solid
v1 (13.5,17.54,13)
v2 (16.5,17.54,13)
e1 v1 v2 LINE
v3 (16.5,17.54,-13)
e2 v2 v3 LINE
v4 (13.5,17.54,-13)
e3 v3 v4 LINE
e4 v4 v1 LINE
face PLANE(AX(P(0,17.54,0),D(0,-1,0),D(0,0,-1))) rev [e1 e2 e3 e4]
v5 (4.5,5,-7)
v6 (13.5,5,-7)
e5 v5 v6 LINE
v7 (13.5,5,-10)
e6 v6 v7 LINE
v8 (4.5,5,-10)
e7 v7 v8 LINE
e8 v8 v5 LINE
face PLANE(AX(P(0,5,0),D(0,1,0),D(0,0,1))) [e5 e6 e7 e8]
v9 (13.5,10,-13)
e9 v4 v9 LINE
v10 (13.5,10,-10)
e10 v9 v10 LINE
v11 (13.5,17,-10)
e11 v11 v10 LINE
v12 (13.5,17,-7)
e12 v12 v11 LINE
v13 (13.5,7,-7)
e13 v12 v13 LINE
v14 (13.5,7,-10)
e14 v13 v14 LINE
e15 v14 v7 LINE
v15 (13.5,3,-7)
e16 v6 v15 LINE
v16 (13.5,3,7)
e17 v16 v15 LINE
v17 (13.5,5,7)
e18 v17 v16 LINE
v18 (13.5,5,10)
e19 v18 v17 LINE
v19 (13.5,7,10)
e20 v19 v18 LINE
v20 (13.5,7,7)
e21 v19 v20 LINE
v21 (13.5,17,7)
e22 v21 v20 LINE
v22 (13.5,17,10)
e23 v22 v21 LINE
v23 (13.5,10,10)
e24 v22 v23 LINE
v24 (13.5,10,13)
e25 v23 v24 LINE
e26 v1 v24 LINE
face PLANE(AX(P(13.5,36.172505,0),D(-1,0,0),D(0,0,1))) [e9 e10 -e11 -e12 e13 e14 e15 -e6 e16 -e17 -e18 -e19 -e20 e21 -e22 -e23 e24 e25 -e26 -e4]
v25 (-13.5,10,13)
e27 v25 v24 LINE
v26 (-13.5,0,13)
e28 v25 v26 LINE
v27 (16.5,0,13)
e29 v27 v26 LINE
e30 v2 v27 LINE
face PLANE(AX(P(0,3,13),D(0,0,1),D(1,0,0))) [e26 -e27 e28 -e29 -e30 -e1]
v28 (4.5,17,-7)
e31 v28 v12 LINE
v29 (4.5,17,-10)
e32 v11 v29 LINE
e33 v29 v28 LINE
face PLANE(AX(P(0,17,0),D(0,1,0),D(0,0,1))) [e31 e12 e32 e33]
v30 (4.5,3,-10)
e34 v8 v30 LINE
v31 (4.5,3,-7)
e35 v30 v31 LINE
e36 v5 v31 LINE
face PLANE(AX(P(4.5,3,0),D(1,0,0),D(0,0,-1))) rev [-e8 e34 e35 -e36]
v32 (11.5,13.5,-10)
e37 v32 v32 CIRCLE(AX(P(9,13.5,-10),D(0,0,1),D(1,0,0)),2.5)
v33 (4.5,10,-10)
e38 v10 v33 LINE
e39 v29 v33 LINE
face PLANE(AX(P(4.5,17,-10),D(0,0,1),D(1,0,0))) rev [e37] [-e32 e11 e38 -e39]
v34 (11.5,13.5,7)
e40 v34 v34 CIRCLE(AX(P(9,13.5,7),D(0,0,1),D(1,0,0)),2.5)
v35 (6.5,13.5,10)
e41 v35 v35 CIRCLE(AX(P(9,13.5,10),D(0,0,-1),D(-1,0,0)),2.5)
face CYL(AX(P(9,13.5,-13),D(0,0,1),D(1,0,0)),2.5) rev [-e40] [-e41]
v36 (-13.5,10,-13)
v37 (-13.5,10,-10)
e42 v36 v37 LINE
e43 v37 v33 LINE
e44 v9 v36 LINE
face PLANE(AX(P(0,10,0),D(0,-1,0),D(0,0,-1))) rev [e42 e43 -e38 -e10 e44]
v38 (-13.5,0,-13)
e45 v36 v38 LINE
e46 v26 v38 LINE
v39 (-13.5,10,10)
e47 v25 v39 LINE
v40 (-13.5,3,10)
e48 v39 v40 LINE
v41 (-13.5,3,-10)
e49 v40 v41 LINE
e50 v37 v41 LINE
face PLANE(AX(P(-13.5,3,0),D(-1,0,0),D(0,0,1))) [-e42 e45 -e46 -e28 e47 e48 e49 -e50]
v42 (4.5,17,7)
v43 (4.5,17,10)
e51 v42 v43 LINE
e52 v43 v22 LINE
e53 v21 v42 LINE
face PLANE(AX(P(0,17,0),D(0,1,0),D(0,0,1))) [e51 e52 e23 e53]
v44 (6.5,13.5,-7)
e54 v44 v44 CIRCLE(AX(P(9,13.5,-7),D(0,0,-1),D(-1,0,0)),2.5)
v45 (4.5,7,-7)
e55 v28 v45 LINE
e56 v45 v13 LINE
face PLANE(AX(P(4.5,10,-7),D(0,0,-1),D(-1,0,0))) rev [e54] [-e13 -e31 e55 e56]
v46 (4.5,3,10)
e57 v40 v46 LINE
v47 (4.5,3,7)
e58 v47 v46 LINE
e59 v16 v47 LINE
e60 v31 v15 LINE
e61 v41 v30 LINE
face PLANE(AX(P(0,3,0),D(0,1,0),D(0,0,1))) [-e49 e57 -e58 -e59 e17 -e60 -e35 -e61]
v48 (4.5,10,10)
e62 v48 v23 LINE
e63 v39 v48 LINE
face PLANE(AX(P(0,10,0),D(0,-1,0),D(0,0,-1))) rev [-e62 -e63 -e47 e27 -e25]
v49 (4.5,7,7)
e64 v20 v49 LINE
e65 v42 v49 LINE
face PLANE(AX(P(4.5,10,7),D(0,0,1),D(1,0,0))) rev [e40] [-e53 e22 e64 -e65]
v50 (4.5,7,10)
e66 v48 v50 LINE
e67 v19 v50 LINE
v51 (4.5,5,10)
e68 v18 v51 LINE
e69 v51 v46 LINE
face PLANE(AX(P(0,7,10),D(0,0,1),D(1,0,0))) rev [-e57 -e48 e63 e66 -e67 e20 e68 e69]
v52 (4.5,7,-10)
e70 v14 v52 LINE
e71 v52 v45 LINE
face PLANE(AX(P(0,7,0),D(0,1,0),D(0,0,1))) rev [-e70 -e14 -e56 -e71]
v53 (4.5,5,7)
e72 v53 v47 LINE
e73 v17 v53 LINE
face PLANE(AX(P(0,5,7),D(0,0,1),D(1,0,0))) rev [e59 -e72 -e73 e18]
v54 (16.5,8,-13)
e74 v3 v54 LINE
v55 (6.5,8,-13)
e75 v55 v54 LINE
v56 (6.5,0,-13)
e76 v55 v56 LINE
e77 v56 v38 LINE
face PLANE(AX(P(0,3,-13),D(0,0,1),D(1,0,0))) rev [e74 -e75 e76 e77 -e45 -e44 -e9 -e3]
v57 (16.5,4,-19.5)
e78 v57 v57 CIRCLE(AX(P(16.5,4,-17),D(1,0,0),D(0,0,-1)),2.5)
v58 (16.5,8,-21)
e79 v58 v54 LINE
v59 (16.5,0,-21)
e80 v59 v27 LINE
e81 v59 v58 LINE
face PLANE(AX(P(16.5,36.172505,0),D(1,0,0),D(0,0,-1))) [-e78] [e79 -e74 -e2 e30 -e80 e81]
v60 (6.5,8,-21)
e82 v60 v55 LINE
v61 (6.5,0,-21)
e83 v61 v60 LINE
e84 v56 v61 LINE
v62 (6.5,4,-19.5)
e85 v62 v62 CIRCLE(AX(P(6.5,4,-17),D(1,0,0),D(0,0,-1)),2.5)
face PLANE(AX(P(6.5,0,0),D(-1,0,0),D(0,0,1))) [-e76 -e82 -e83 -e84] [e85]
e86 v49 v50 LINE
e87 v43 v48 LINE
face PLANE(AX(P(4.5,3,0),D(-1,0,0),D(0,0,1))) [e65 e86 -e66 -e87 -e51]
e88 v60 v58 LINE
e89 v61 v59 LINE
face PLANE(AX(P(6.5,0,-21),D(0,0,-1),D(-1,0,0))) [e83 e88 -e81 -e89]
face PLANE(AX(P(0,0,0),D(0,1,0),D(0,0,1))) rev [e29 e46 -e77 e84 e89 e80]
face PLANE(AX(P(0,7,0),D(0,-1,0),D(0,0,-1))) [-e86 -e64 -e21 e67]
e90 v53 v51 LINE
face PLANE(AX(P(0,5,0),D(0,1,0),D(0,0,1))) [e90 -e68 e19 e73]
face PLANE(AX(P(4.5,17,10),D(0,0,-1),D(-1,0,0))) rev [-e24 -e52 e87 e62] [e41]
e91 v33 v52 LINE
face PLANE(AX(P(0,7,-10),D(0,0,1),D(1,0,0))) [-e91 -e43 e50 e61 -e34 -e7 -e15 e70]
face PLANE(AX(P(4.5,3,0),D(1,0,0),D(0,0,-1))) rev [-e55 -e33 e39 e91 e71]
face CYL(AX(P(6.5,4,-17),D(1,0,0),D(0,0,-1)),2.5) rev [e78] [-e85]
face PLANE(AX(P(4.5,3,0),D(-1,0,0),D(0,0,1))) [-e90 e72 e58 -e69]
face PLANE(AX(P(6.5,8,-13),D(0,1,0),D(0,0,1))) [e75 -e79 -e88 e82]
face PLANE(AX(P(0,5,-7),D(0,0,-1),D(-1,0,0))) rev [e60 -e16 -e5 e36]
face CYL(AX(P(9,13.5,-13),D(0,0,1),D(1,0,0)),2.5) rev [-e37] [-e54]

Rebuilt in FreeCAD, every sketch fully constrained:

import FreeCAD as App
import Part
import Sketcher
Q = App.Units.Quantity

doc = App.newDocument("Part")
params = doc.addObject("Spreadsheet::Sheet", "Params")
for row, (alias, value) in enumerate([
    ("sketch1_width", "18 mm"),
    ("sketch1_width2", "9 mm"),
    ("sketch1_height", "20 mm"),
    ("sketch1_height2", "3 mm"),
    ("pad1_length", "3 mm"),
    ("sketch2_width", "9 mm"),
    ("sketch2_height", "3 mm"),
    ("pad2_length", "4 mm"),
    ("sketch3_width", "9 mm"),
    ("sketch3_height", "6 mm"),
    ("pad3_length", "3 mm"),
    ("sketch4_width", "9 mm"),
    ("sketch4_height", "6 mm"),
    ("pad4_length", "2 mm"),
    ("sketch5_width", "3 mm"),
    ("sketch5_width2", "18 mm"),
    ("sketch5_height", "26 mm"),
    ("pad5_length", "10 mm"),
    ("sketch6_width", "3 mm"),
    ("sketch6_height", "26 mm"),
    ("pad6_length", "7.54 mm"),
    ("sketch7_width", "9 mm"),
    ("sketch7_height", "3 mm"),
    ("pad7_length", "7 mm"),
    ("sketch8_diameter", "5 mm"),
    ("sketch9_diameter", "5 mm"),
    ("sketch9_width", "8 mm"),
    ("pad8_length", "10 mm"),
], start=1):
    params.set(f"A{row}", alias)
    params.set(f"B{row}", "=" + value)
    params.setAlias(f"B{row}", alias)

body = doc.addObject("PartDesign::Body", "Body")

# Sketch on XZ plane
sketch1 = body.newObject("Sketcher::SketchObject", "Sketch")
sketch1.AttachmentSupport = (doc.getObject("XZ_Plane"), [""])
sketch1.MapMode = "FlatFace"
sketch1.addGeometry(Part.LineSegment(App.Vector(-13.5, -10, 0), App.Vector(-13.5, 10, 0)), False)
sketch1.addGeometry(Part.LineSegment(App.Vector(-13.5, 10, 0), App.Vector(4.5, 10, 0)), False)
sketch1.addGeometry(Part.LineSegment(App.Vector(4.5, 10, 0), App.Vector(4.5, 13, 0)), False)
sketch1.addGeometry(Part.LineSegment(App.Vector(4.5, 13, 0), App.Vector(13.5, 13, 0)), False)
sketch1.addGeometry(Part.LineSegment(App.Vector(13.5, 13, 0), App.Vector(13.5, -13, 0)), False)
sketch1.addGeometry(Part.LineSegment(App.Vector(13.5, -13, 0), App.Vector(4.5, -13, 0)), False)
sketch1.addGeometry(Part.LineSegment(App.Vector(4.5, -13, 0), App.Vector(4.5, -10, 0)), False)
sketch1.addGeometry(Part.LineSegment(App.Vector(4.5, -10, 0), App.Vector(-13.5, -10, 0)), False)
sketch1.addConstraint(Sketcher.Constraint("Coincident", 0, 2, 1, 1))
sketch1.addConstraint(Sketcher.Constraint("Coincident", 1, 2, 2, 1))
sketch1.addConstraint(Sketcher.Constraint("Coincident", 2, 2, 3, 1))
sketch1.addConstraint(Sketcher.Constraint("Coincident", 3, 2, 4, 1))
sketch1.addConstraint(Sketcher.Constraint("Coincident", 4, 2, 5, 1))
sketch1.addConstraint(Sketcher.Constraint("Coincident", 5, 2, 6, 1))
sketch1.addConstraint(Sketcher.Constraint("Coincident", 6, 2, 7, 1))
sketch1.addConstraint(Sketcher.Constraint("Coincident", 7, 2, 0, 1))
sketch1.addConstraint(Sketcher.Constraint("Vertical", 0))
sketch1.addConstraint(Sketcher.Constraint("Horizontal", 1))
sketch1.addConstraint(Sketcher.Constraint("Vertical", 2))
sketch1.addConstraint(Sketcher.Constraint("Horizontal", 3))
sketch1.addConstraint(Sketcher.Constraint("Vertical", 4))
sketch1.addConstraint(Sketcher.Constraint("Horizontal", 5))
sketch1.addConstraint(Sketcher.Constraint("Vertical", 6))
sketch1.addConstraint(Sketcher.Constraint("Horizontal", 7))
sketch1.addConstraint(Sketcher.Constraint("Symmetric", 2, 2, 5, 2, -1))
sketch1.addConstraint(Sketcher.Constraint("Equal", 2, 6))
sketch1.addConstraint(Sketcher.Constraint("DistanceX", 1, 1, 1, 2, Q("18 mm")))
sketch1.addConstraint(Sketcher.Constraint("DistanceX", 3, 1, 3, 2, Q("9 mm")))
sketch1.addConstraint(Sketcher.Constraint("DistanceY", 0, 1, 0, 2, Q("20 mm")))
sketch1.addConstraint(Sketcher.Constraint("DistanceY", 2, 1, 2, 2, Q("3 mm")))
sketch1.addConstraint(Sketcher.Constraint("DistanceX", 0, 2, -1, 1, Q("13.5 mm")))
sketch1.setExpression("Constraints[18]", "Params.sketch1_width")
sketch1.setExpression("Constraints[19]", "Params.sketch1_width2")
sketch1.setExpression("Constraints[20]", "Params.sketch1_height")
sketch1.setExpression("Constraints[21]", "Params.sketch1_height2")
pad1 = body.newObject("PartDesign::Pad", "Pad")
pad1.Profile = sketch1
pad1.setExpression("Length", "Params.pad1_length")
pad1.Reversed = True

# Sketch on XZ plane
sketch2 = body.newObject("Sketcher::SketchObject", "Sketch001")
sketch2.AttachmentSupport = (doc.getObject("XZ_Plane"), [""])
sketch2.MapMode = "FlatFace"
sketch2.AttachmentOffset = App.Placement(App.Vector(0, 0, -3), App.Rotation())
sketch2.addGeometry(Part.LineSegment(App.Vector(4.5, 10, 0), App.Vector(4.5, 13, 0)), False)
sketch2.addGeometry(Part.LineSegment(App.Vector(4.5, 13, 0), App.Vector(13.5, 13, 0)), False)
sketch2.addGeometry(Part.LineSegment(App.Vector(13.5, 13, 0), App.Vector(13.5, 10, 0)), False)
sketch2.addGeometry(Part.LineSegment(App.Vector(13.5, 10, 0), App.Vector(4.5, 10, 0)), False)
sketch2.addGeometry(Part.LineSegment(App.Vector(4.5, -13, 0), App.Vector(4.5, -10, 0)), False)
sketch2.addGeometry(Part.LineSegment(App.Vector(4.5, -10, 0), App.Vector(13.5, -10, 0)), False)
sketch2.addGeometry(Part.LineSegment(App.Vector(13.5, -10, 0), App.Vector(13.5, -13, 0)), False)
sketch2.addGeometry(Part.LineSegment(App.Vector(13.5, -13, 0), App.Vector(4.5, -13, 0)), False)
sketch2.addConstraint(Sketcher.Constraint("Coincident", 0, 2, 1, 1))
sketch2.addConstraint(Sketcher.Constraint("Coincident", 1, 2, 2, 1))
sketch2.addConstraint(Sketcher.Constraint("Coincident", 2, 2, 3, 1))
sketch2.addConstraint(Sketcher.Constraint("Coincident", 3, 2, 0, 1))
sketch2.addConstraint(Sketcher.Constraint("Coincident", 4, 2, 5, 1))
sketch2.addConstraint(Sketcher.Constraint("Coincident", 5, 2, 6, 1))
sketch2.addConstraint(Sketcher.Constraint("Coincident", 6, 2, 7, 1))
sketch2.addConstraint(Sketcher.Constraint("Coincident", 7, 2, 4, 1))
sketch2.addConstraint(Sketcher.Constraint("Vertical", 0))
sketch2.addConstraint(Sketcher.Constraint("Horizontal", 1))
sketch2.addConstraint(Sketcher.Constraint("Vertical", 2))
sketch2.addConstraint(Sketcher.Constraint("Horizontal", 3))
sketch2.addConstraint(Sketcher.Constraint("Vertical", 4))
sketch2.addConstraint(Sketcher.Constraint("Horizontal", 5))
sketch2.addConstraint(Sketcher.Constraint("Vertical", 6))
sketch2.addConstraint(Sketcher.Constraint("Horizontal", 7))
sketch2.addConstraint(Sketcher.Constraint("Symmetric", 3, 2, 4, 2, -1))
sketch2.addConstraint(Sketcher.Constraint("Symmetric", 1, 2, 6, 2, -1))
sketch2.addConstraint(Sketcher.Constraint("DistanceX", 1, 1, 1, 2, Q("9 mm")))
sketch2.addConstraint(Sketcher.Constraint("DistanceY", 0, 1, 0, 2, Q("3 mm")))
sketch2.addConstraint(Sketcher.Constraint("DistanceY", -1, 1, 0, 2, Q("13 mm")))
sketch2.addConstraint(Sketcher.Constraint("DistanceX", -1, 1, 0, 2, Q("4.5 mm")))
sketch2.setExpression("Constraints[18]", "Params.sketch2_width")
sketch2.setExpression("Constraints[19]", "Params.sketch2_height")
pad2 = body.newObject("PartDesign::Pad", "Pad001")
pad2.Profile = sketch2
pad2.setExpression("Length", "Params.pad2_length")
pad2.Reversed = True

# Sketch on XZ plane
sketch3 = body.newObject("Sketcher::SketchObject", "Sketch002")
sketch3.AttachmentSupport = (doc.getObject("XZ_Plane"), [""])
sketch3.MapMode = "FlatFace"
sketch3.AttachmentOffset = App.Placement(App.Vector(0, 0, -7), App.Rotation())
sketch3.addGeometry(Part.LineSegment(App.Vector(4, 7, 0), App.Vector(4, 13, 0)), False)
sketch3.addGeometry(Part.LineSegment(App.Vector(4, 13, 0), App.Vector(14, 13, 0)), False)
sketch3.addGeometry(Part.LineSegment(App.Vector(14, 13, 0), App.Vector(14, 7, 0)), False)
sketch3.addGeometry(Part.LineSegment(App.Vector(14, 7, 0), App.Vector(4, 7, 0)), False)
sketch3.addGeometry(Part.LineSegment(App.Vector(4, -13, 0), App.Vector(4, -7, 0)), False)
sketch3.addGeometry(Part.LineSegment(App.Vector(4, -7, 0), App.Vector(14, -7, 0)), False)
sketch3.addGeometry(Part.LineSegment(App.Vector(14, -7, 0), App.Vector(14, -13, 0)), False)
sketch3.addGeometry(Part.LineSegment(App.Vector(14, -13, 0), App.Vector(4, -13, 0)), False)
sketch3.addConstraint(Sketcher.Constraint("Coincident", 0, 2, 1, 1))
sketch3.addConstraint(Sketcher.Constraint("Coincident", 1, 2, 2, 1))
sketch3.addConstraint(Sketcher.Constraint("Coincident", 2, 2, 3, 1))
sketch3.addConstraint(Sketcher.Constraint("Coincident", 3, 2, 0, 1))
sketch3.addConstraint(Sketcher.Constraint("Coincident", 4, 2, 5, 1))
sketch3.addConstraint(Sketcher.Constraint("Coincident", 5, 2, 6, 1))
sketch3.addConstraint(Sketcher.Constraint("Coincident", 6, 2, 7, 1))
sketch3.addConstraint(Sketcher.Constraint("Coincident", 7, 2, 4, 1))
sketch3.addConstraint(Sketcher.Constraint("Vertical", 0))
sketch3.addConstraint(Sketcher.Constraint("Horizontal", 1))
sketch3.addConstraint(Sketcher.Constraint("Vertical", 2))
sketch3.addConstraint(Sketcher.Constraint("Horizontal", 3))
sketch3.addConstraint(Sketcher.Constraint("Vertical", 4))
sketch3.addConstraint(Sketcher.Constraint("Horizontal", 5))
sketch3.addConstraint(Sketcher.Constraint("Vertical", 6))
sketch3.addConstraint(Sketcher.Constraint("Horizontal", 7))
sketch3.addConstraint(Sketcher.Constraint("Symmetric", 3, 2, 4, 2, -1))
sketch3.addConstraint(Sketcher.Constraint("Symmetric", 1, 2, 6, 2, -1))
sketch3.addConstraint(Sketcher.Constraint("DistanceX", 1, 1, 1, 2, Q("9 mm")))
sketch3.addConstraint(Sketcher.Constraint("DistanceY", 0, 1, 0, 2, Q("6 mm")))
sketch3.addConstraint(Sketcher.Constraint("DistanceY", -1, 1, 0, 2, Q("13 mm")))
sketch3.addConstraint(Sketcher.Constraint("DistanceX", -1, 1, 0, 2, Q("4.5 mm")))
sketch3.setExpression("Constraints[18]", "Params.sketch3_width")
sketch3.setExpression("Constraints[19]", "Params.sketch3_height")
pad3 = body.newObject("PartDesign::Pad", "Pad002")
pad3.Profile = sketch3
pad3.setExpression("Length", "Params.pad3_length")
pad3.Reversed = True

# Sketch on XZ plane
sketch4 = body.newObject("Sketcher::SketchObject", "Sketch003")
sketch4.AttachmentSupport = (doc.getObject("XZ_Plane"), [""])
sketch4.MapMode = "FlatFace"
sketch4.AttachmentOffset = App.Placement(App.Vector(0, 0, -3), App.Rotation())
sketch4.addGeometry(Part.LineSegment(App.Vector(4, 7, 0), App.Vector(4, 13, 0)), False)
sketch4.addGeometry(Part.LineSegment(App.Vector(4, 13, 0), App.Vector(14, 13, 0)), False)
sketch4.addGeometry(Part.LineSegment(App.Vector(14, 13, 0), App.Vector(14, 7, 0)), False)
sketch4.addGeometry(Part.LineSegment(App.Vector(14, 7, 0), App.Vector(4, 7, 0)), False)
sketch4.addGeometry(Part.LineSegment(App.Vector(4, -13, 0), App.Vector(4, -7, 0)), False)
sketch4.addGeometry(Part.LineSegment(App.Vector(4, -7, 0), App.Vector(14, -7, 0)), False)
sketch4.addGeometry(Part.LineSegment(App.Vector(14, -7, 0), App.Vector(14, -13, 0)), False)
sketch4.addGeometry(Part.LineSegment(App.Vector(14, -13, 0), App.Vector(4, -13, 0)), False)
sketch4.addConstraint(Sketcher.Constraint("Coincident", 0, 2, 1, 1))
sketch4.addConstraint(Sketcher.Constraint("Coincident", 1, 2, 2, 1))
sketch4.addConstraint(Sketcher.Constraint("Coincident", 2, 2, 3, 1))
sketch4.addConstraint(Sketcher.Constraint("Coincident", 3, 2, 0, 1))
sketch4.addConstraint(Sketcher.Constraint("Coincident", 4, 2, 5, 1))
sketch4.addConstraint(Sketcher.Constraint("Coincident", 5, 2, 6, 1))
sketch4.addConstraint(Sketcher.Constraint("Coincident", 6, 2, 7, 1))
sketch4.addConstraint(Sketcher.Constraint("Coincident", 7, 2, 4, 1))
sketch4.addConstraint(Sketcher.Constraint("Vertical", 0))
sketch4.addConstraint(Sketcher.Constraint("Horizontal", 1))
sketch4.addConstraint(Sketcher.Constraint("Vertical", 2))
sketch4.addConstraint(Sketcher.Constraint("Horizontal", 3))
sketch4.addConstraint(Sketcher.Constraint("Vertical", 4))
sketch4.addConstraint(Sketcher.Constraint("Horizontal", 5))
sketch4.addConstraint(Sketcher.Constraint("Vertical", 6))
sketch4.addConstraint(Sketcher.Constraint("Horizontal", 7))
sketch4.addConstraint(Sketcher.Constraint("Symmetric", 3, 2, 4, 2, -1))
sketch4.addConstraint(Sketcher.Constraint("Symmetric", 1, 2, 6, 2, -1))
sketch4.addConstraint(Sketcher.Constraint("DistanceX", 1, 1, 1, 2, Q("9 mm")))
sketch4.addConstraint(Sketcher.Constraint("DistanceY", 0, 1, 0, 2, Q("6 mm")))
sketch4.addConstraint(Sketcher.Constraint("DistanceY", -1, 1, 0, 2, Q("13 mm")))
sketch4.addConstraint(Sketcher.Constraint("DistanceX", -1, 1, 0, 2, Q("4.5 mm")))
sketch4.setExpression("Constraints[18]", "Params.sketch4_width")
sketch4.setExpression("Constraints[19]", "Params.sketch4_height")
pad4 = body.newObject("PartDesign::Pad", "Pad003")
pad4.Profile = sketch4
pad4.setExpression("Length", "Params.pad4_length")
pad4.Reversed = True

# Sketch on XZ plane
sketch5 = body.newObject("Sketcher::SketchObject", "Sketch004")
sketch5.AttachmentSupport = (doc.getObject("XZ_Plane"), [""])
sketch5.MapMode = "FlatFace"
sketch5.addGeometry(Part.LineSegment(App.Vector(13.5, 13, 0), App.Vector(16.5, 13, 0)), False)
sketch5.addGeometry(Part.LineSegment(App.Vector(16.5, 13, 0), App.Vector(16.5, -13, 0)), False)
sketch5.addGeometry(Part.LineSegment(App.Vector(16.5, -13, 0), App.Vector(13.5, -13, 0)), False)
sketch5.addGeometry(Part.LineSegment(App.Vector(13.5, -13, 0), App.Vector(13.5, 13, 0)), False)
sketch5.addGeometry(Part.LineSegment(App.Vector(-13.5, 10, 0), App.Vector(-13.5, 13, 0)), False)
sketch5.addGeometry(Part.LineSegment(App.Vector(-13.5, 13, 0), App.Vector(4.5, 13, 0)), False)
sketch5.addGeometry(Part.LineSegment(App.Vector(4.5, 13, 0), App.Vector(4.5, 10, 0)), False)
sketch5.addGeometry(Part.LineSegment(App.Vector(4.5, 10, 0), App.Vector(-13.5, 10, 0)), False)
sketch5.addGeometry(Part.LineSegment(App.Vector(-13.5, -13, 0), App.Vector(-13.5, -10, 0)), False)
sketch5.addGeometry(Part.LineSegment(App.Vector(-13.5, -10, 0), App.Vector(4.5, -10, 0)), False)
sketch5.addGeometry(Part.LineSegment(App.Vector(4.5, -10, 0), App.Vector(4.5, -13, 0)), False)
sketch5.addGeometry(Part.LineSegment(App.Vector(4.5, -13, 0), App.Vector(-13.5, -13, 0)), False)
sketch5.addConstraint(Sketcher.Constraint("Coincident", 0, 2, 1, 1))
sketch5.addConstraint(Sketcher.Constraint("Coincident", 1, 2, 2, 1))
sketch5.addConstraint(Sketcher.Constraint("Coincident", 2, 2, 3, 1))
sketch5.addConstraint(Sketcher.Constraint("Coincident", 3, 2, 0, 1))
sketch5.addConstraint(Sketcher.Constraint("Coincident", 4, 2, 5, 1))
sketch5.addConstraint(Sketcher.Constraint("Coincident", 5, 2, 6, 1))
sketch5.addConstraint(Sketcher.Constraint("Coincident", 6, 2, 7, 1))
sketch5.addConstraint(Sketcher.Constraint("Coincident", 7, 2, 4, 1))
sketch5.addConstraint(Sketcher.Constraint("Coincident", 8, 2, 9, 1))
sketch5.addConstraint(Sketcher.Constraint("Coincident", 9, 2, 10, 1))
sketch5.addConstraint(Sketcher.Constraint("Coincident", 10, 2, 11, 1))
sketch5.addConstraint(Sketcher.Constraint("Coincident", 11, 2, 8, 1))
sketch5.addConstraint(Sketcher.Constraint("Horizontal", 0))
sketch5.addConstraint(Sketcher.Constraint("Vertical", 1))
sketch5.addConstraint(Sketcher.Constraint("Horizontal", 2))
sketch5.addConstraint(Sketcher.Constraint("Vertical", 3))
sketch5.addConstraint(Sketcher.Constraint("Vertical", 4))
sketch5.addConstraint(Sketcher.Constraint("Horizontal", 5))
sketch5.addConstraint(Sketcher.Constraint("Vertical", 6))
sketch5.addConstraint(Sketcher.Constraint("Horizontal", 7))
sketch5.addConstraint(Sketcher.Constraint("Vertical", 8))
sketch5.addConstraint(Sketcher.Constraint("Horizontal", 9))
sketch5.addConstraint(Sketcher.Constraint("Vertical", 10))
sketch5.addConstraint(Sketcher.Constraint("Horizontal", 11))
sketch5.addConstraint(Sketcher.Constraint("Symmetric", 2, 2, 4, 2, -1, 1))
sketch5.addConstraint(Sketcher.Constraint("Symmetric", 3, 2, 11, 2, -1, 1))
sketch5.addConstraint(Sketcher.Constraint("Symmetric", 6, 2, 9, 2, -1))
sketch5.addConstraint(Sketcher.Constraint("Horizontal", 3, 2, 4, 2))
sketch5.addConstraint(Sketcher.Constraint("Equal", 2, 4))
sketch5.addConstraint(Sketcher.Constraint("DistanceX", 0, 1, 0, 2, Q("3 mm")))
sketch5.addConstraint(Sketcher.Constraint("DistanceX", 5, 1, 5, 2, Q("18 mm")))
sketch5.addConstraint(Sketcher.Constraint("DistanceY", 1, 2, 1, 1, Q("26 mm")))
sketch5.addConstraint(Sketcher.Constraint("DistanceX", 4, 2, 3, 2, Q("27 mm")))
sketch5.setExpression("Constraints[29]", "Params.sketch5_width")
sketch5.setExpression("Constraints[30]", "Params.sketch5_width2")
sketch5.setExpression("Constraints[31]", "Params.sketch5_height")
pad5 = body.newObject("PartDesign::Pad", "Pad004")
pad5.Profile = sketch5
pad5.setExpression("Length", "Params.pad5_length")
pad5.Reversed = True

# Sketch on XZ plane
sketch6 = body.newObject("Sketcher::SketchObject", "Sketch005")
sketch6.AttachmentSupport = (doc.getObject("XZ_Plane"), [""])
sketch6.MapMode = "FlatFace"
sketch6.AttachmentOffset = App.Placement(App.Vector(0, 0, -10), App.Rotation())
sketch6.addGeometry(Part.LineSegment(App.Vector(13.5, -13, 0), App.Vector(13.5, 13, 0)), False)
sketch6.addGeometry(Part.LineSegment(App.Vector(13.5, 13, 0), App.Vector(16.5, 13, 0)), False)
sketch6.addGeometry(Part.LineSegment(App.Vector(16.5, 13, 0), App.Vector(16.5, -13, 0)), False)
sketch6.addGeometry(Part.LineSegment(App.Vector(16.5, -13, 0), App.Vector(13.5, -13, 0)), False)
sketch6.addConstraint(Sketcher.Constraint("Coincident", 0, 2, 1, 1))
sketch6.addConstraint(Sketcher.Constraint("Coincident", 1, 2, 2, 1))
sketch6.addConstraint(Sketcher.Constraint("Coincident", 2, 2, 3, 1))
sketch6.addConstraint(Sketcher.Constraint("Coincident", 3, 2, 0, 1))
sketch6.addConstraint(Sketcher.Constraint("Vertical", 0))
sketch6.addConstraint(Sketcher.Constraint("Horizontal", 1))
sketch6.addConstraint(Sketcher.Constraint("Vertical", 2))
sketch6.addConstraint(Sketcher.Constraint("Horizontal", 3))
sketch6.addConstraint(Sketcher.Constraint("DistanceX", 1, 1, 1, 2, Q("3 mm")))
sketch6.addConstraint(Sketcher.Constraint("DistanceY", 0, 1, 0, 2, Q("26 mm")))
sketch6.addConstraint(Sketcher.Constraint("DistanceY", -1, 1, 0, 2, Q("13 mm")))
sketch6.addConstraint(Sketcher.Constraint("DistanceX", -1, 1, 0, 2, Q("13.5 mm")))
sketch6.setExpression("Constraints[8]", "Params.sketch6_width")
sketch6.setExpression("Constraints[9]", "Params.sketch6_height")
pad6 = body.newObject("PartDesign::Pad", "Pad005")
pad6.Profile = sketch6
pad6.setExpression("Length", "Params.pad6_length")
pad6.Reversed = True

# Sketch on XZ plane
sketch7 = body.newObject("Sketcher::SketchObject", "Sketch006")
sketch7.AttachmentSupport = (doc.getObject("XZ_Plane"), [""])
sketch7.MapMode = "FlatFace"
sketch7.AttachmentOffset = App.Placement(App.Vector(0, 0, -10), App.Rotation())
sketch7.addGeometry(Part.LineSegment(App.Vector(4.5, -10, 0), App.Vector(4.5, -7, 0)), False)
sketch7.addGeometry(Part.LineSegment(App.Vector(4.5, -7, 0), App.Vector(13.5, -7, 0)), False)
sketch7.addGeometry(Part.LineSegment(App.Vector(13.5, -7, 0), App.Vector(13.5, -10, 0)), False)
sketch7.addGeometry(Part.LineSegment(App.Vector(13.5, -10, 0), App.Vector(4.5, -10, 0)), False)
sketch7.addGeometry(Part.LineSegment(App.Vector(4.5, 7, 0), App.Vector(4.5, 10, 0)), False)
sketch7.addGeometry(Part.LineSegment(App.Vector(4.5, 10, 0), App.Vector(13.5, 10, 0)), False)
sketch7.addGeometry(Part.LineSegment(App.Vector(13.5, 10, 0), App.Vector(13.5, 7, 0)), False)
sketch7.addGeometry(Part.LineSegment(App.Vector(13.5, 7, 0), App.Vector(4.5, 7, 0)), False)
sketch7.addConstraint(Sketcher.Constraint("Coincident", 0, 2, 1, 1))
sketch7.addConstraint(Sketcher.Constraint("Coincident", 1, 2, 2, 1))
sketch7.addConstraint(Sketcher.Constraint("Coincident", 2, 2, 3, 1))
sketch7.addConstraint(Sketcher.Constraint("Coincident", 3, 2, 0, 1))
sketch7.addConstraint(Sketcher.Constraint("Coincident", 4, 2, 5, 1))
sketch7.addConstraint(Sketcher.Constraint("Coincident", 5, 2, 6, 1))
sketch7.addConstraint(Sketcher.Constraint("Coincident", 6, 2, 7, 1))
sketch7.addConstraint(Sketcher.Constraint("Coincident", 7, 2, 4, 1))
sketch7.addConstraint(Sketcher.Constraint("Vertical", 0))
sketch7.addConstraint(Sketcher.Constraint("Horizontal", 1))
sketch7.addConstraint(Sketcher.Constraint("Vertical", 2))
sketch7.addConstraint(Sketcher.Constraint("Horizontal", 3))
sketch7.addConstraint(Sketcher.Constraint("Vertical", 4))
sketch7.addConstraint(Sketcher.Constraint("Horizontal", 5))
sketch7.addConstraint(Sketcher.Constraint("Vertical", 6))
sketch7.addConstraint(Sketcher.Constraint("Horizontal", 7))
sketch7.addConstraint(Sketcher.Constraint("Symmetric", 3, 2, 4, 2, -1))
sketch7.addConstraint(Sketcher.Constraint("Symmetric", 1, 2, 6, 2, -1))
sketch7.addConstraint(Sketcher.Constraint("DistanceX", 1, 1, 1, 2, Q("9 mm")))
sketch7.addConstraint(Sketcher.Constraint("DistanceY", 0, 1, 0, 2, Q("3 mm")))
sketch7.addConstraint(Sketcher.Constraint("DistanceY", 0, 2, -1, 1, Q("7 mm")))
sketch7.addConstraint(Sketcher.Constraint("DistanceX", -1, 1, 0, 2, Q("4.5 mm")))
sketch7.setExpression("Constraints[18]", "Params.sketch7_width")
sketch7.setExpression("Constraints[19]", "Params.sketch7_height")
pad7 = body.newObject("PartDesign::Pad", "Pad006")
pad7.Profile = sketch7
pad7.setExpression("Length", "Params.pad7_length")
pad7.Reversed = True

# Sketch on XY plane
sketch8 = body.newObject("Sketcher::SketchObject", "Sketch007")
sketch8.AttachmentSupport = (doc.getObject("XY_Plane"), [""])
sketch8.MapMode = "FlatFace"
sketch8.AttachmentOffset = App.Placement(App.Vector(0, 0, 10), App.Rotation())
sketch8.addGeometry(Part.Circle(App.Vector(9, 13.5, 0), App.Vector(0, 0, 1), 2.5), False)
sketch8.addConstraint(Sketcher.Constraint("Diameter", 0, Q("5 mm")))
sketch8.addConstraint(Sketcher.Constraint("DistanceX", -1, 1, 0, 3, Q("9 mm")))
sketch8.addConstraint(Sketcher.Constraint("DistanceY", -1, 1, 0, 3, Q("13.5 mm")))
sketch8.setExpression("Constraints[0]", "Params.sketch8_diameter")
pocket1 = body.newObject("PartDesign::Pocket", "Pocket")
pocket1.Profile = sketch8
pocket1.Type = "ThroughAll"
pocket1.Midplane = True

# Sketch on YZ plane
sketch9 = body.newObject("Sketcher::SketchObject", "Sketch008")
sketch9.AttachmentSupport = (doc.getObject("YZ_Plane"), [""])
sketch9.MapMode = "FlatFace"
sketch9.AttachmentOffset = App.Placement(App.Vector(0, 0, 16.5), App.Rotation())
sketch9.addGeometry(Part.LineSegment(App.Vector(8, -13, 0), App.Vector(0, -13, 0)), False)
sketch9.addGeometry(Part.LineSegment(App.Vector(0, -13, 0), App.Vector(0, -21, 0)), False)
sketch9.addGeometry(Part.LineSegment(App.Vector(0, -21, 0), App.Vector(8, -21, 0)), False)
sketch9.addGeometry(Part.LineSegment(App.Vector(8, -21, 0), App.Vector(8, -13, 0)), False)
sketch9.addGeometry(Part.Circle(App.Vector(4, -17, 0), App.Vector(0, 0, 1), 2.5), False)
sketch9.addConstraint(Sketcher.Constraint("Coincident", 0, 2, 1, 1))
sketch9.addConstraint(Sketcher.Constraint("Coincident", 1, 2, 2, 1))
sketch9.addConstraint(Sketcher.Constraint("Coincident", 2, 2, 3, 1))
sketch9.addConstraint(Sketcher.Constraint("Coincident", 3, 2, 0, 1))
sketch9.addConstraint(Sketcher.Constraint("Horizontal", 0))
sketch9.addConstraint(Sketcher.Constraint("Vertical", 1))
sketch9.addConstraint(Sketcher.Constraint("Horizontal", 2))
sketch9.addConstraint(Sketcher.Constraint("Vertical", 3))
sketch9.addConstraint(Sketcher.Constraint("PointOnObject", 0, 2, -2))
sketch9.addConstraint(Sketcher.Constraint("Equal", 2, 1))
sketch9.addConstraint(Sketcher.Constraint("Diameter", 4, Q("5 mm")))
sketch9.addConstraint(Sketcher.Constraint("DistanceX", 0, 2, 0, 1, Q("8 mm")))
sketch9.addConstraint(Sketcher.Constraint("DistanceX", -1, 1, 4, 3, Q("4 mm")))
sketch9.addConstraint(Sketcher.Constraint("DistanceY", 4, 3, -1, 1, Q("17 mm")))
sketch9.addConstraint(Sketcher.Constraint("DistanceY", 0, 2, -1, 1, Q("13 mm")))
sketch9.setExpression("Constraints[10]", "Params.sketch9_diameter")
sketch9.setExpression("Constraints[11]", "Params.sketch9_width")
pad8 = body.newObject("PartDesign::Pad", "Pad007")
pad8.Profile = sketch9
pad8.setExpression("Length", "Params.pad8_length")
pad8.Reversed = True

doc.recompute()
